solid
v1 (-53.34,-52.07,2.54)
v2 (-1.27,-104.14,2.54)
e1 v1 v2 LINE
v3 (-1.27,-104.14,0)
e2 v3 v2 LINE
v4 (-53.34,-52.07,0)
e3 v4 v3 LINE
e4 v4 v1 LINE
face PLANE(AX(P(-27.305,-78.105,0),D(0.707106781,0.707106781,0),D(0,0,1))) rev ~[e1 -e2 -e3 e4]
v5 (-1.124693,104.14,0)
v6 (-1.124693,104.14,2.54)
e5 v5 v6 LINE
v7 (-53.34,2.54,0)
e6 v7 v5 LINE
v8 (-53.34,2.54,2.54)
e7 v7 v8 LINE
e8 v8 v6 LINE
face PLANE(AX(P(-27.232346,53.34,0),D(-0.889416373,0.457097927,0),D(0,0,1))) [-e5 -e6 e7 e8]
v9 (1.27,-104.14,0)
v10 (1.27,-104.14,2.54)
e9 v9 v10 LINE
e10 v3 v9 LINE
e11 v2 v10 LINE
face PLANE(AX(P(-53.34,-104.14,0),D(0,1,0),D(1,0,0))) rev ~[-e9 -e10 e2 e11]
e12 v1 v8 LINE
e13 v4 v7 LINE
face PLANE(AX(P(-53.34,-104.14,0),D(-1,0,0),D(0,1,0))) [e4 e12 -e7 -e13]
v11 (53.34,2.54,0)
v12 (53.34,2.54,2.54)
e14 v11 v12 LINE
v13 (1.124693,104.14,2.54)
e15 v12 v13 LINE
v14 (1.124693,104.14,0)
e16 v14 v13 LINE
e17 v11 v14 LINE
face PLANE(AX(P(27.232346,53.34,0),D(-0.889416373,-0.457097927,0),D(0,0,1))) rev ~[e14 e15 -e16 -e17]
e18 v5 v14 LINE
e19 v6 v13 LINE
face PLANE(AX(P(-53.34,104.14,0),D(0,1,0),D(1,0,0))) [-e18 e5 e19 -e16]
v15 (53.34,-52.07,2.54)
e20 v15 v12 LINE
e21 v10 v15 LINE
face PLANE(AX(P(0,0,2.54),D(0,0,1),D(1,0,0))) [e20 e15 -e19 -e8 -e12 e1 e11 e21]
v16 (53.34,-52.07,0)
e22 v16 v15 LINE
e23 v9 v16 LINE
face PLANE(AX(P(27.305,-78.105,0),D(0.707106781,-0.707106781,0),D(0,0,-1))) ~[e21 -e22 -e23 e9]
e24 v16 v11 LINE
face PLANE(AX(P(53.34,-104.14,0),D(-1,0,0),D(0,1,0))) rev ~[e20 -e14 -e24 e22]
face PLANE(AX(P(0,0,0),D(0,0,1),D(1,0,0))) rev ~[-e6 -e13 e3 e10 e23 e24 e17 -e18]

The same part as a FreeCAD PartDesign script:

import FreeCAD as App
import Part
import Sketcher

V = App.Vector
Q = App.Units.Quantity


def edges_at(feature, points):
    """Names of the edges that pass closest to the given points."""
    edges = feature.Shape.Edges
    near = lambda p: min(range(len(edges)), key=lambda i: edges[i].distToShape(Part.Vertex(*p))[0])
    return sorted({f"Edge{near(p) + 1}" for p in points})

doc = App.newDocument("Part")
params = doc.addObject("Spreadsheet::Sheet", "Params")
for row, (alias, value) in enumerate([
    ("sketch1_width", "4.2 in"),
    ("sketch1_height", "8.2 in"),
    ("pad1_length", "0.1 in"),
    ("chamfer_size", "2.05 in"),
    ("chamfer2_size", "4 in"),
    ("chamfer2_size2", "52.215307 mm"),
    ("chamfer3_size", "4 in"),
    ("chamfer3_size2", "52.215307 mm"),
], start=1):
    params.set(f"A{row}", alias)
    params.set(f"B{row}", "=" + value)
    params.setAlias(f"B{row}", alias)

body = doc.addObject("PartDesign::Body", "Body")

sketch1 = body.newObject("Sketcher::SketchObject", "Sketch")
sketch1.AttachmentSupport = (doc.getObject("XY_Plane"), [""])
sketch1.MapMode = "FlatFace"
sketch1.addGeometry(Part.LineSegment(V(-53.34, 104.14, 0), V(-53.34, -104.14, 0)), False)
sketch1.addGeometry(Part.LineSegment(V(-53.34, -104.14, 0), V(53.34, -104.14, 0)), False)
sketch1.addGeometry(Part.LineSegment(V(53.34, -104.14, 0), V(53.34, 104.14, 0)), False)
sketch1.addGeometry(Part.LineSegment(V(53.34, 104.14, 0), V(-53.34, 104.14, 0)), False)
sketch1.addConstraint(Sketcher.Constraint("Coincident", 0, 2, 1, 1))
sketch1.addConstraint(Sketcher.Constraint("Coincident", 1, 2, 2, 1))
sketch1.addConstraint(Sketcher.Constraint("Coincident", 2, 2, 3, 1))
sketch1.addConstraint(Sketcher.Constraint("Coincident", 3, 2, 0, 1))
sketch1.addConstraint(Sketcher.Constraint("Vertical", 0))
sketch1.addConstraint(Sketcher.Constraint("Horizontal", 1))
sketch1.addConstraint(Sketcher.Constraint("Vertical", 2))
sketch1.addConstraint(Sketcher.Constraint("Horizontal", 3))
sketch1.addConstraint(Sketcher.Constraint("Symmetric", 0, 2, 2, 2, -1, 1))
sketch1.addConstraint(Sketcher.Constraint("DistanceX", 1, 1, 1, 2, Q("4.2 in")))
sketch1.addConstraint(Sketcher.Constraint("DistanceY", 0, 2, 0, 1, Q("8.2 in")))
sketch1.setExpression("Constraints[9]", "Params.sketch1_width")
sketch1.setExpression("Constraints[10]", "Params.sketch1_height")
pad1 = body.newObject("PartDesign::Pad", "Pad")
pad1.Profile = sketch1
pad1.setExpression("Length", "Params.pad1_length")
doc.recompute()

chamfer = body.newObject("PartDesign::Chamfer", "Chamfer")
chamfer.Base = (pad1, edges_at(pad1, [(-53.34, -104.14, 1.27), (53.34, -104.14, 1.27)]))
chamfer.setExpression("Size", "Params.chamfer_size")
doc.recompute()

chamfer2 = body.newObject("PartDesign::Chamfer", "Chamfer001")
chamfer2.Base = (chamfer, edges_at(chamfer, [(-53.34, 104.14, 1.27)]))
chamfer2.ChamferType = "Two distances"
chamfer2.setExpression("Size", "Params.chamfer2_size")
chamfer2.setExpression("Size2", "Params.chamfer2_size2")
doc.recompute()

chamfer3 = body.newObject("PartDesign::Chamfer", "Chamfer002")
chamfer3.Base = (chamfer2, edges_at(chamfer2, [(53.34, 104.14, 1.27)]))
chamfer3.ChamferType = "Two distances"
chamfer3.setExpression("Size", "Params.chamfer3_size")
chamfer3.setExpression("Size2", "Params.chamfer3_size2")
chamfer3.FlipDirection = True

doc.recompute()
